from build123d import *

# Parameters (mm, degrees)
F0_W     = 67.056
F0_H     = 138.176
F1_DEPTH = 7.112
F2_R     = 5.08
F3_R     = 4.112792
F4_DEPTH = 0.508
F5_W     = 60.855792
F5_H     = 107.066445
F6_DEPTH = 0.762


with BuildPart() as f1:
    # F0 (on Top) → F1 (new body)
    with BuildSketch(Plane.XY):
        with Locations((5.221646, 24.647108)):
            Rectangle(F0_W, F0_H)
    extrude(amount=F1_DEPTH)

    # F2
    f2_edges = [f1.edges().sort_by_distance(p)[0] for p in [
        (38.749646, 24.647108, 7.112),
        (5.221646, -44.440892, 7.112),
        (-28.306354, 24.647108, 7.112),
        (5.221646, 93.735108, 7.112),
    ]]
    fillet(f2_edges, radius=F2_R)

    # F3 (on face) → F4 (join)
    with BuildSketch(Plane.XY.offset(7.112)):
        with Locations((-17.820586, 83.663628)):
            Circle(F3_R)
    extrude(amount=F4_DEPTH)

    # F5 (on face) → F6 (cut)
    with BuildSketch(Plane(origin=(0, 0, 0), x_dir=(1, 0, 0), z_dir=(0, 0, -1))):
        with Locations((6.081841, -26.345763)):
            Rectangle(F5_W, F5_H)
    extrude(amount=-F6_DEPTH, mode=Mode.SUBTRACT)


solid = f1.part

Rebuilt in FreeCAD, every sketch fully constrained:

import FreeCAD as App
import Part
import Sketcher
from FreeCAD import Vector
Q = App.Units.Quantity


def edges_at(feature, points):
    """Names of the edges that pass closest to the given points."""
    edges = feature.Shape.Edges
    near = lambda p: min(range(len(edges)), key=lambda i: edges[i].distToShape(Part.Vertex(*p))[0])
    return sorted({f"Edge{near(p) + 1}" for p in points})

doc = App.newDocument("Part")
body = doc.addObject("PartDesign::Body", "Body")

# Sketch on XY plane
sketch1 = body.newObject("Sketcher::SketchObject", "Sketch")
sketch1.AttachmentSupport = (doc.getObject("XY_Plane"), [""])
sketch1.MapMode = "FlatFace"
sketch1.addGeometry([
    Part.LineSegment(Vector(-28, 94, 0), Vector(-28, -44, 0)),
    Part.LineSegment(Vector(-28, -44, 0), Vector(39, -44, 0)),
    Part.LineSegment(Vector(39, -44, 0), Vector(39, 94, 0)),
    Part.LineSegment(Vector(39, 94, 0), Vector(-28, 94, 0)),
], False)
sketch1.addConstraint([
    Sketcher.Constraint("Coincident", 0, 2, 1, 1),
    Sketcher.Constraint("Coincident", 1, 2, 2, 1),
    Sketcher.Constraint("Coincident", 2, 2, 3, 1),
    Sketcher.Constraint("Coincident", 3, 2, 0, 1),
    Sketcher.Constraint("Vertical", 0),
    Sketcher.Constraint("Horizontal", 1),
    Sketcher.Constraint("Vertical", 2),
    Sketcher.Constraint("Horizontal", 3),
    Sketcher.Constraint("DistanceX", 1, 1, 1, 2, Q("2.64 in")),
    Sketcher.Constraint("DistanceY", 0, 2, 0, 1, Q("5.44 in")),
    Sketcher.Constraint("DistanceY", 0, 2, -1, 1, Q("44.440892 mm")),
    Sketcher.Constraint("DistanceX", 0, 2, -1, 1, Q("28.306354 mm")),
])
pad1 = body.newObject("PartDesign::Pad", "Pad")
pad1.Profile = sketch1
pad1.Length = Q("0.28 in")
doc.recompute()

fillet = body.newObject("PartDesign::Fillet", "Fillet")
fillet.Base = (pad1, edges_at(pad1, [
    (38.75, 24.647, 7.112),
    (5.222, -44.441, 7.112),
    (-28.306, 24.647, 7.112),
    (5.222, 93.735, 7.112),
]))
fillet.Radius = Q("0.2 in")

# Sketch on XY plane
sketch2 = body.newObject("Sketcher::SketchObject", "Sketch001")
sketch2.AttachmentSupport = (doc.getObject("XY_Plane"), [""])
sketch2.MapMode = "FlatFace"
sketch2.AttachmentOffset = App.Placement(Vector(0, 0, 0.28 * 25.4), App.Rotation())
sketch2.addGeometry(Part.Circle(Vector(-17.8, 83.7, 0), Vector(0, 0, 1), 4.1), False)
sketch2.addConstraint([
    Sketcher.Constraint("Diameter", 0, Q("8.225584 mm")),
    Sketcher.Constraint("DistanceY", -1, 1, 0, 3, Q("83.663628 mm")),
    Sketcher.Constraint("DistanceX", 0, 3, -1, 1, Q("17.820586 mm")),
])
pad2 = body.newObject("PartDesign::Pad", "Pad001")
pad2.Profile = sketch2
pad2.Length = Q("0.02 in")

# Sketch on XY plane
sketch3 = body.newObject("Sketcher::SketchObject", "Sketch002")
sketch3.AttachmentSupport = (doc.getObject("XY_Plane"), [""])
sketch3.MapMode = "FlatFace"
sketch3.addGeometry([
    Part.LineSegment(Vector(-24, -27, 0), Vector(-24, 80, 0)),
    Part.LineSegment(Vector(-24, 80, 0), Vector(37, 80, 0)),
    Part.LineSegment(Vector(37, 80, 0), Vector(37, -27, 0)),
    Part.LineSegment(Vector(37, -27, 0), Vector(-24, -27, 0)),
], False)
sketch3.addConstraint([
    Sketcher.Constraint("Coincident", 0, 2, 1, 1),
    Sketcher.Constraint("Coincident", 1, 2, 2, 1),
    Sketcher.Constraint("Coincident", 2, 2, 3, 1),
    Sketcher.Constraint("Coincident", 3, 2, 0, 1),
    Sketcher.Constraint("Vertical", 0),
    Sketcher.Constraint("Horizontal", 1),
    Sketcher.Constraint("Vertical", 2),
    Sketcher.Constraint("Horizontal", 3),
    Sketcher.Constraint("DistanceX", 1, 1, 1, 2, Q("60.855792 mm")),
    Sketcher.Constraint("DistanceY", 0, 1, 0, 2, Q("107.066445 mm")),
    Sketcher.Constraint("DistanceY", 2, 2, -1, 1, Q("27.187459 mm")),
    Sketcher.Constraint("DistanceX", 0, 2, -1, 1, Q("24.346055 mm")),
])
pocket1 = body.newObject("PartDesign::Pocket", "Pocket")
pocket1.Profile = sketch3
pocket1.Length = Q("0.03 in")
pocket1.Reversed = True

doc.recompute()
